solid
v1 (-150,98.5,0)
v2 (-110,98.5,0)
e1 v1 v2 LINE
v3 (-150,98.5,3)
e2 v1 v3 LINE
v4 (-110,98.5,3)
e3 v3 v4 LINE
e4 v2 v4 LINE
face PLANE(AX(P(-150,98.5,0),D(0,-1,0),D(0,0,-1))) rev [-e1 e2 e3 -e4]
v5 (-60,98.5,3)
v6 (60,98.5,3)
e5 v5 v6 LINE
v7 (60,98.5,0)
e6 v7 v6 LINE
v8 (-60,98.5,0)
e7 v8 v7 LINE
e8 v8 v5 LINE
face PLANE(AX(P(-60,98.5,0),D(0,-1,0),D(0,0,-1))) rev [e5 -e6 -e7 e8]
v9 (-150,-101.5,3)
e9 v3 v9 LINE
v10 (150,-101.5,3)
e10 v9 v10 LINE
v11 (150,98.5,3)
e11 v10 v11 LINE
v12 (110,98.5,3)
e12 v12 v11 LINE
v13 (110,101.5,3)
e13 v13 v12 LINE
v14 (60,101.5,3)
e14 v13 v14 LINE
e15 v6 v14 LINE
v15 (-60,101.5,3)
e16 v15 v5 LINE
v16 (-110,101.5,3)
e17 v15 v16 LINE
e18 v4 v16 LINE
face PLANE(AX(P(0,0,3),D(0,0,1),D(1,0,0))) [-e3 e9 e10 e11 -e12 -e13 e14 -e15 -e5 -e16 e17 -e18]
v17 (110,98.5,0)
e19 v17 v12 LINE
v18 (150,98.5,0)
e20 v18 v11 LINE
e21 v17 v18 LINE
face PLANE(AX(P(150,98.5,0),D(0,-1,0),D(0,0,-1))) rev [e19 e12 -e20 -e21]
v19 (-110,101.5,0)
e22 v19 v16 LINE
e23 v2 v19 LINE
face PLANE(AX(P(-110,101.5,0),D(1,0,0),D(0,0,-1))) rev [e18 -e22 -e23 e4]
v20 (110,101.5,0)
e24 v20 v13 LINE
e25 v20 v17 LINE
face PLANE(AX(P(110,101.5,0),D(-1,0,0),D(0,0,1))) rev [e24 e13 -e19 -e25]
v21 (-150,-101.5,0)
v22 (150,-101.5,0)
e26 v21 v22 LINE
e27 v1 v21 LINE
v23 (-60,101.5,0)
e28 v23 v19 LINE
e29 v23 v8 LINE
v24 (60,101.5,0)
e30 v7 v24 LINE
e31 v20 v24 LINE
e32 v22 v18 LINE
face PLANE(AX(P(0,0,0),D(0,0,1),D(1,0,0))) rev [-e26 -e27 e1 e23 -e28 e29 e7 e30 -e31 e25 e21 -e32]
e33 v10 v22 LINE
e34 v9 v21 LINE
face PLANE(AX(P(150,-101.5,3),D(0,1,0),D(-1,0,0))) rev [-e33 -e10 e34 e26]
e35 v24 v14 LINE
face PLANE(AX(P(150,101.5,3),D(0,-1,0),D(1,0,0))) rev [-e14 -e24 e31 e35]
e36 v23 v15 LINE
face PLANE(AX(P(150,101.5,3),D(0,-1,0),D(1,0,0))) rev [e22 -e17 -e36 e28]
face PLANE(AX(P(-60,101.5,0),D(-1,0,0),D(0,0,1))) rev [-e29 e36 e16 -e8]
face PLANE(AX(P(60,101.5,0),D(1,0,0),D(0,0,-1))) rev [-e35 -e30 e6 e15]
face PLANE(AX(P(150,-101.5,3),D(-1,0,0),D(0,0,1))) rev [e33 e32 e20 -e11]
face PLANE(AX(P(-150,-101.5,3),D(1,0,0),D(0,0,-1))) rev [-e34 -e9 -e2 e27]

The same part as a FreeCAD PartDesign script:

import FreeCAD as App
import Part
import Sketcher
from FreeCAD import Vector

doc = App.newDocument("Part")
body = doc.addObject("PartDesign::Body", "Body")

# Sketch on XY plane
sketch1 = body.newObject("Sketcher::SketchObject", "Sketch")
sketch1.AttachmentSupport = (doc.getObject("XY_Plane"), [""])
sketch1.MapMode = "FlatFace"
sketch1.addGeometry([
    Part.LineSegment(Vector(-150, 101.5, 0), Vector(-150, -101.5, 0)),
    Part.LineSegment(Vector(-150, -101.5, 0), Vector(150, -101.5, 0)),
    Part.LineSegment(Vector(150, -101.5, 0), Vector(150, 101.5, 0)),
    Part.LineSegment(Vector(150, 101.5, 0), Vector(-150, 101.5, 0)),
], False)
sketch1.addConstraint([
    Sketcher.Constraint("Coincident", 0, 2, 1, 1),
    Sketcher.Constraint("Coincident", 1, 2, 2, 1),
    Sketcher.Constraint("Coincident", 2, 2, 3, 1),
    Sketcher.Constraint("Coincident", 3, 2, 0, 1),
    Sketcher.Constraint("Vertical", 0),
    Sketcher.Constraint("Horizontal", 1),
    Sketcher.Constraint("Vertical", 2),
    Sketcher.Constraint("Horizontal", 3),
    Sketcher.Constraint("Symmetric", 0, 2, 2, 2, -1, 1),
    Sketcher.Constraint("DistanceX", 1, 1, 1, 2, 300.0),
    Sketcher.Constraint("DistanceY", 0, 2, 0, 1, 203.0),
])
pad1 = body.newObject("PartDesign::Pad", "Pad")
pad1.Profile = sketch1
pad1.Length = 3

# Sketch on XY plane
sketch2 = body.newObject("Sketcher::SketchObject", "Sketch001")
sketch2.AttachmentSupport = (doc.getObject("XY_Plane"), [""])
sketch2.MapMode = "FlatFace"
sketch2.AttachmentOffset = App.Placement(Vector(0, 0, 3), App.Rotation())
sketch2.addGeometry([
    Part.LineSegment(Vector(-150, 101.5, 0), Vector(-150, 98.5, 0)),  # 0
    Part.LineSegment(Vector(-150, 98.5, 0), Vector(-110, 98.5, 0)),  # 1
    Part.LineSegment(Vector(-110, 98.5, 0), Vector(-110, 101.5, 0)),  # 2
    Part.LineSegment(Vector(-110, 101.5, 0), Vector(-150, 101.5, 0)),  # 3
    Part.LineSegment(Vector(-60, 101.5, 0), Vector(-60, 98.5, 0)),  # 4
    Part.LineSegment(Vector(-60, 98.5, 0), Vector(60, 98.5, 0)),  # 5
    Part.LineSegment(Vector(60, 98.5, 0), Vector(60, 101.5, 0)),  # 6
    Part.LineSegment(Vector(60, 101.5, 0), Vector(-60, 101.5, 0)),  # 7
    Part.LineSegment(Vector(110, 101.5, 0), Vector(110, 98.5, 0)),  # 8
    Part.LineSegment(Vector(110, 98.5, 0), Vector(150, 98.5, 0)),  # 9
    Part.LineSegment(Vector(150, 98.5, 0), Vector(150, 101.5, 0)),  # 10
    Part.LineSegment(Vector(150, 101.5, 0), Vector(110, 101.5, 0)),  # 11
], False)
sketch2.addConstraint([
    Sketcher.Constraint("Coincident", 0, 2, 1, 1),
    Sketcher.Constraint("Coincident", 1, 2, 2, 1),
    Sketcher.Constraint("Coincident", 2, 2, 3, 1),
    Sketcher.Constraint("Coincident", 3, 2, 0, 1),
    Sketcher.Constraint("Coincident", 4, 2, 5, 1),
    Sketcher.Constraint("Coincident", 5, 2, 6, 1),
    Sketcher.Constraint("Coincident", 6, 2, 7, 1),
    Sketcher.Constraint("Coincident", 7, 2, 4, 1),
    Sketcher.Constraint("Coincident", 8, 2, 9, 1),
    Sketcher.Constraint("Coincident", 9, 2, 10, 1),
    Sketcher.Constraint("Coincident", 10, 2, 11, 1),
    Sketcher.Constraint("Coincident", 11, 2, 8, 1),
    Sketcher.Constraint("Vertical", 0),
    Sketcher.Constraint("Horizontal", 1),
    Sketcher.Constraint("Vertical", 2),
    Sketcher.Constraint("Horizontal", 3),
    Sketcher.Constraint("Vertical", 4),
    Sketcher.Constraint("Horizontal", 5),
    Sketcher.Constraint("Vertical", 6),
    Sketcher.Constraint("Horizontal", 7),
    Sketcher.Constraint("Vertical", 8),
    Sketcher.Constraint("Horizontal", 9),
    Sketcher.Constraint("Vertical", 10),
    Sketcher.Constraint("Horizontal", 11),
    Sketcher.Constraint("Symmetric", 1, 2, 8, 2, -2),
    Sketcher.Constraint("Symmetric", 3, 2, 10, 2, -2),
    Sketcher.Constraint("Horizontal", 1, 2, 4, 2),
    Sketcher.Constraint("Horizontal", 3, 2, 6, 2),
    Sketcher.Constraint("DistanceX", 1, 1, 1, 2, 40.0),
    Sketcher.Constraint("DistanceX", 5, 1, 5, 2, 120.0),
    Sketcher.Constraint("DistanceY", 0, 2, 0, 1, 3.0),
    Sketcher.Constraint("DistanceX", 0, 2, -1, 1, 150.0),
    Sketcher.Constraint("DistanceX", 4, 2, -1, 1, 60.0),
    Sketcher.Constraint("DistanceY", -1, 1, 0, 2, 98.5),
])
pocket1 = body.newObject("PartDesign::Pocket", "Pocket")
pocket1.Profile = sketch2
pocket1.Length = 3

doc.recompute()
